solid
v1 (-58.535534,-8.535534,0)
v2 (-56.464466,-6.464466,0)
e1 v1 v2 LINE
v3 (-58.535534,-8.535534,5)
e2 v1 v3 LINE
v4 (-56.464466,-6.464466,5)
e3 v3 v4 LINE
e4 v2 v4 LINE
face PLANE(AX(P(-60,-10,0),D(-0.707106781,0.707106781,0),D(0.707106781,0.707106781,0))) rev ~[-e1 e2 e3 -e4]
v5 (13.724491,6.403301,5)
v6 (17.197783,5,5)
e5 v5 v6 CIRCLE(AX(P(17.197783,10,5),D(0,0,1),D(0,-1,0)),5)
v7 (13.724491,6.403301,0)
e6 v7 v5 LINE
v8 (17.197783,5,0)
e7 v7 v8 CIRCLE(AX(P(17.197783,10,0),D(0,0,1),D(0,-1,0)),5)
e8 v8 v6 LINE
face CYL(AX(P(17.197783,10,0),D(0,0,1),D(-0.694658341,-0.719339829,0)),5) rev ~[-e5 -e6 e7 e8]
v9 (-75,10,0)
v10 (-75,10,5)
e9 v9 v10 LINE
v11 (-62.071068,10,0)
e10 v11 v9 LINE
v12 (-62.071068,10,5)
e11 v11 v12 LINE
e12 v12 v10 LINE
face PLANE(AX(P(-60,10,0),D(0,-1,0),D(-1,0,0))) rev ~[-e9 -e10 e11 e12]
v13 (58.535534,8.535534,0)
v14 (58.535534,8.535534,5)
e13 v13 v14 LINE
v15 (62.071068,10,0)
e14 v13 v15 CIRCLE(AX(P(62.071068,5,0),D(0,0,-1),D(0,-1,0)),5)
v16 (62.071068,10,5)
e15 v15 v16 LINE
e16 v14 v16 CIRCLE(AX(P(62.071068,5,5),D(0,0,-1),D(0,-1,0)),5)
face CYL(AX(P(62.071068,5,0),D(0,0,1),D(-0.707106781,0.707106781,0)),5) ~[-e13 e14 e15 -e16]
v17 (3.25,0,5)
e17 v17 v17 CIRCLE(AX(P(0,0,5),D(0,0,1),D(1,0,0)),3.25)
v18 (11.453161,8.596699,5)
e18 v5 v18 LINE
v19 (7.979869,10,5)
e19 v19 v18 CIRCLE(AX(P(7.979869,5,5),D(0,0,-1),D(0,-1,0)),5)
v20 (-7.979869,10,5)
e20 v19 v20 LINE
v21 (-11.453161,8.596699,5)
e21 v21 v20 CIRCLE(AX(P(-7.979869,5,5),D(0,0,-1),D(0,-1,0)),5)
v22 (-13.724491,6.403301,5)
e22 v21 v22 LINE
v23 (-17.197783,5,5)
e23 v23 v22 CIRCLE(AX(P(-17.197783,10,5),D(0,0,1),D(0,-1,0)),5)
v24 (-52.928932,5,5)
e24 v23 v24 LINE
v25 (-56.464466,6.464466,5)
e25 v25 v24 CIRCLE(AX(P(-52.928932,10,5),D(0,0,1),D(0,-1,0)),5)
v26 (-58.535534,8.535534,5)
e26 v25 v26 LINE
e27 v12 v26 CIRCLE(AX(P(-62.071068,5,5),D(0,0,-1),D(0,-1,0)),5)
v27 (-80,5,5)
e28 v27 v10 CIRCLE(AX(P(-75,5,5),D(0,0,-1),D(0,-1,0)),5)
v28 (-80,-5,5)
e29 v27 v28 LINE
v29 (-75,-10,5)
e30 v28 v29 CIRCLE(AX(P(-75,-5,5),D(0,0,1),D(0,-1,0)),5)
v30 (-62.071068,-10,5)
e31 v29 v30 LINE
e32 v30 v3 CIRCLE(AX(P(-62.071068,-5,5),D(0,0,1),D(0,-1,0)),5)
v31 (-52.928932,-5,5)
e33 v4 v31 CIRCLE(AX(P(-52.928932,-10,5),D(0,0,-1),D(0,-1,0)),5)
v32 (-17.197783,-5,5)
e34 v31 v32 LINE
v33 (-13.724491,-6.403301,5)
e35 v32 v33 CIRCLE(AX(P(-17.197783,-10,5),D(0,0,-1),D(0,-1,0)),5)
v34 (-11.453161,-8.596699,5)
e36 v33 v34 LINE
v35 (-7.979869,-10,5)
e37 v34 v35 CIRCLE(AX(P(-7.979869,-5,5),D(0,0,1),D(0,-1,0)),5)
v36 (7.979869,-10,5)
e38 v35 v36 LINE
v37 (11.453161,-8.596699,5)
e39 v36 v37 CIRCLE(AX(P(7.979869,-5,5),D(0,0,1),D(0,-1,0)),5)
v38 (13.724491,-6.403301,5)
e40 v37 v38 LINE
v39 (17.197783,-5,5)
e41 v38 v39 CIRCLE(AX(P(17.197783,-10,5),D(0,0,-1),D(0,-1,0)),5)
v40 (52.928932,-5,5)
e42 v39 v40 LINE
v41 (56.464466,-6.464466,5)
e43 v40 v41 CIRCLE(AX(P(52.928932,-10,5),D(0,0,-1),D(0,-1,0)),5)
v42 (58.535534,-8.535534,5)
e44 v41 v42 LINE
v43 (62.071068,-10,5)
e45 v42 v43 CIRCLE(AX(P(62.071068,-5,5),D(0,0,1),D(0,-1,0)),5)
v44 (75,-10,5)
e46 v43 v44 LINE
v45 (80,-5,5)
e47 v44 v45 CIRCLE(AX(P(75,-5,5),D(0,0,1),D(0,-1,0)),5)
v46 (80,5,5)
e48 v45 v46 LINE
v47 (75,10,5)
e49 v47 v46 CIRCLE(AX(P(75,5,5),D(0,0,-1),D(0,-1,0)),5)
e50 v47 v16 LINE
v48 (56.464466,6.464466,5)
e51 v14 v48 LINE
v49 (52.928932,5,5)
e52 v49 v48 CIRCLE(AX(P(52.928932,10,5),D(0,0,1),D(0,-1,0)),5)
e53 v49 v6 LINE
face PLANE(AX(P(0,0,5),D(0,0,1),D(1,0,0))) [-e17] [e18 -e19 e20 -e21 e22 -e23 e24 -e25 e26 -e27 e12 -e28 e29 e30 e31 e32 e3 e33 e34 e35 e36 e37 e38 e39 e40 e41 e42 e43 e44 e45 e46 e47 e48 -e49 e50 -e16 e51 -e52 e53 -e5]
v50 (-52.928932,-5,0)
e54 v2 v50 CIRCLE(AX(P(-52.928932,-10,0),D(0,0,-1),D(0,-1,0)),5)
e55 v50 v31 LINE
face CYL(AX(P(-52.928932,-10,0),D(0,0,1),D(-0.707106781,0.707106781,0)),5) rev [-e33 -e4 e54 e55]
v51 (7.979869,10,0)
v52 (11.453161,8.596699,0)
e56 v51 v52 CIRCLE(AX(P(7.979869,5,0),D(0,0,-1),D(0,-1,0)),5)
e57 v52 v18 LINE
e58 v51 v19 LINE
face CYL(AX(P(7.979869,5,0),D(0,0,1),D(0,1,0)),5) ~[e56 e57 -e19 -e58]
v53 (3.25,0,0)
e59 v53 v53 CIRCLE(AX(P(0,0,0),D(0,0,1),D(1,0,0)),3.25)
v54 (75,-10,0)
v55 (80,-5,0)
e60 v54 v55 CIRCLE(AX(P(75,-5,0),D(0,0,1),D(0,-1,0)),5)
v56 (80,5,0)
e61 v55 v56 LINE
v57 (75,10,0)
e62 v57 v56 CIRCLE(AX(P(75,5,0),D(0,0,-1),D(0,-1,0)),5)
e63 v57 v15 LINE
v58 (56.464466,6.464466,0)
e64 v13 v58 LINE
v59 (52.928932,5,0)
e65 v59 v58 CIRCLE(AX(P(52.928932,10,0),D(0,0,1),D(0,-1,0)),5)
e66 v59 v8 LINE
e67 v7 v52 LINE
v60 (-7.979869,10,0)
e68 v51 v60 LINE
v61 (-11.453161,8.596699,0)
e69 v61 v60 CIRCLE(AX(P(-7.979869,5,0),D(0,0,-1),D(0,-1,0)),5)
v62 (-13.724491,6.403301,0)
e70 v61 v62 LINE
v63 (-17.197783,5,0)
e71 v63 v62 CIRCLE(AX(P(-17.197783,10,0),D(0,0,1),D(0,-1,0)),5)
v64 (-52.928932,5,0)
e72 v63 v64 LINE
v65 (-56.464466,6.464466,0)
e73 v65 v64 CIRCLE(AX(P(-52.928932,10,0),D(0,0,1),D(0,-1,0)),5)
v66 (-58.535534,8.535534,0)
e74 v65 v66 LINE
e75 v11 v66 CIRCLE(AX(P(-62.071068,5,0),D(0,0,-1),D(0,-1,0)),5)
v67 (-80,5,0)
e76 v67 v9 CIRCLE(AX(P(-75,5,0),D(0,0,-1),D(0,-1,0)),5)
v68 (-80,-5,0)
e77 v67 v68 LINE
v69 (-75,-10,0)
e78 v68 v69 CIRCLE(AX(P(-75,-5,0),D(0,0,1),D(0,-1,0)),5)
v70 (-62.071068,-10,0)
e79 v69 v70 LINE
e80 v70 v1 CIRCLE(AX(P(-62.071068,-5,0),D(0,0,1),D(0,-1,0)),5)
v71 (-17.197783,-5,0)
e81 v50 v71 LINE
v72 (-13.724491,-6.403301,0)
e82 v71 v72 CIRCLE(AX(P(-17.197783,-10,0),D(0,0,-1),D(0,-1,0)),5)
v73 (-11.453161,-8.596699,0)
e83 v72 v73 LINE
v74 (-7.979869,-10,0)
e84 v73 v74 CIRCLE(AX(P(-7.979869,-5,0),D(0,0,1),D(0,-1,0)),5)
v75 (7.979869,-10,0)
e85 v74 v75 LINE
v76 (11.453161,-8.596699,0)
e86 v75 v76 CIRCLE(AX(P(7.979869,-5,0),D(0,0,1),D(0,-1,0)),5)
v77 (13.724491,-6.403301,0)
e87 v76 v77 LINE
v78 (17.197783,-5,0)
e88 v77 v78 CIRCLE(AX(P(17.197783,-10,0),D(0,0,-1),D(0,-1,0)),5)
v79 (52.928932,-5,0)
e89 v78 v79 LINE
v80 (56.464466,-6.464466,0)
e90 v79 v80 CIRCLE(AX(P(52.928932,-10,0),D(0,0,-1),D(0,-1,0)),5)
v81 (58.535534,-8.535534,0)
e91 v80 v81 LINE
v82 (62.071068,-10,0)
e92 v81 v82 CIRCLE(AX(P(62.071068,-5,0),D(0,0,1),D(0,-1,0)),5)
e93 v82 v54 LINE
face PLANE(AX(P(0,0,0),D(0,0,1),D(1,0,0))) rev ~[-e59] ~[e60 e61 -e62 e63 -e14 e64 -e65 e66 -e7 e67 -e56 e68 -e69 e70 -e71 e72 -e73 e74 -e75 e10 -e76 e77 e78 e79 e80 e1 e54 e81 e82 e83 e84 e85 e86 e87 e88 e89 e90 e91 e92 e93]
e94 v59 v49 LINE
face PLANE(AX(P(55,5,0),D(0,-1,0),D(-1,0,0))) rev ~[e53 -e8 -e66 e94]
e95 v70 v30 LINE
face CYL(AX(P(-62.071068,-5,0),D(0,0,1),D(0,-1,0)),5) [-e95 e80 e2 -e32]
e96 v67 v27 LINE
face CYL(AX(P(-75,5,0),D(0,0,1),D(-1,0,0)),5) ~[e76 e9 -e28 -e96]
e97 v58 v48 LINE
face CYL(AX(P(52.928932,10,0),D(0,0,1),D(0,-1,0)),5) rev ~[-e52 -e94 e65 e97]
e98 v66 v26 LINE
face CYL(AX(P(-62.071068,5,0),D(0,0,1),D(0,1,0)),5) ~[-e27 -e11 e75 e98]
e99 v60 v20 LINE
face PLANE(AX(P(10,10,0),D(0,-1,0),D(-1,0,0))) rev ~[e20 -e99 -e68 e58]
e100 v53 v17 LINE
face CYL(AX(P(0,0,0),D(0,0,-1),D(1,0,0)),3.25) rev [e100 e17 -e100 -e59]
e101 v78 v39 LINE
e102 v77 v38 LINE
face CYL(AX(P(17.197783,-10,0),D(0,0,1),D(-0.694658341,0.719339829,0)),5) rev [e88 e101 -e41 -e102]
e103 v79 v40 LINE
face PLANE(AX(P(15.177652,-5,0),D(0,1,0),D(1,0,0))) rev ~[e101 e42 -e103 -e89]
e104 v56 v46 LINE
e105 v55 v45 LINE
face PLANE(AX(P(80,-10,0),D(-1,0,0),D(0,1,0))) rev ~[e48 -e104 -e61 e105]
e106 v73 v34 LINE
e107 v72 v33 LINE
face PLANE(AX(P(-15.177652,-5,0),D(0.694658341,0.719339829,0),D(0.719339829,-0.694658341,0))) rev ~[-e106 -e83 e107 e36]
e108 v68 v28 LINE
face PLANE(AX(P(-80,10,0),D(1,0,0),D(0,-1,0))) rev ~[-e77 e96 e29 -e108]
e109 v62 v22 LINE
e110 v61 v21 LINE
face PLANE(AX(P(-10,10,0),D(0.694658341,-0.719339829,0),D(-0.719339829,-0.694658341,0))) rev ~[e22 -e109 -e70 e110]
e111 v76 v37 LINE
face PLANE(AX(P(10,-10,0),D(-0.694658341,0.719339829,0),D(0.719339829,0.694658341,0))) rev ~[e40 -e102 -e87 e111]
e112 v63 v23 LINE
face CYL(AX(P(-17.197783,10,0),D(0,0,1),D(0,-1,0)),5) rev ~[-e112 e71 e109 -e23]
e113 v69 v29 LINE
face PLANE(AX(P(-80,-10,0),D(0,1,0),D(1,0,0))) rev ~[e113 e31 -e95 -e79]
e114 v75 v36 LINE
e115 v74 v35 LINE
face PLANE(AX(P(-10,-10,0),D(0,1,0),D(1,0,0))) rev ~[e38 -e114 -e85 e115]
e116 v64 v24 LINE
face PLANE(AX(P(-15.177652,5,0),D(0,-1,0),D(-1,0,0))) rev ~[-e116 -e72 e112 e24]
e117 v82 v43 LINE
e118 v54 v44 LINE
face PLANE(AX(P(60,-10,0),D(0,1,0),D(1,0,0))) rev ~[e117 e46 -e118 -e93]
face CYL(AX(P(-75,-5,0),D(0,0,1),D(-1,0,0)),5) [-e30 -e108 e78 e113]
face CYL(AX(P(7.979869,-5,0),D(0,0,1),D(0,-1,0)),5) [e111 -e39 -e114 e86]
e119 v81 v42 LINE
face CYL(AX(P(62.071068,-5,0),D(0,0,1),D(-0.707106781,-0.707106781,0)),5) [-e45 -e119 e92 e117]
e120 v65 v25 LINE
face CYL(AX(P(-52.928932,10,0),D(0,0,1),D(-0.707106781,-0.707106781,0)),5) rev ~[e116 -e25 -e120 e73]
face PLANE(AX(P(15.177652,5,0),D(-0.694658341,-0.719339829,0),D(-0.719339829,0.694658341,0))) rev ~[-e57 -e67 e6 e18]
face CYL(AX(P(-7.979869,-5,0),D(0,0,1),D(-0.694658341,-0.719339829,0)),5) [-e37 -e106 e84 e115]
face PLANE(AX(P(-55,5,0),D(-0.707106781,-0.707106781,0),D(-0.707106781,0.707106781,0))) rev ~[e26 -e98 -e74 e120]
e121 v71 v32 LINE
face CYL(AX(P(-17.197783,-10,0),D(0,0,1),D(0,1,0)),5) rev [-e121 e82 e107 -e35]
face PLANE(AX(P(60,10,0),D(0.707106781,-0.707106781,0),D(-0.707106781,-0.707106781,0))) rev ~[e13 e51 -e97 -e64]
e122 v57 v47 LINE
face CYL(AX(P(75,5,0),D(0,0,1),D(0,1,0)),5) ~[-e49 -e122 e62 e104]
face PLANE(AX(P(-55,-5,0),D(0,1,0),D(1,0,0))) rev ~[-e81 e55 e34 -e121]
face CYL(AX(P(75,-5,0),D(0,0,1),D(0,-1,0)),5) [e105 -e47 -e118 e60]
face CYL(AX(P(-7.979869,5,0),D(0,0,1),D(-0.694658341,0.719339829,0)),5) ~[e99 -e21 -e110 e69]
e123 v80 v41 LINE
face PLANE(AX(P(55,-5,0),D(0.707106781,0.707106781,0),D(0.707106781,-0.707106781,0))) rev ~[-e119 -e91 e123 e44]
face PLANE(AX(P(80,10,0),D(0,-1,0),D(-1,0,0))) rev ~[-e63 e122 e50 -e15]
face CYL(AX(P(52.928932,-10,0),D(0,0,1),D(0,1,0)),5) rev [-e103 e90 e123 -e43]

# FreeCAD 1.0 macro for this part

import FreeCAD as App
import Part
import Sketcher
Q = App.Units.Quantity


def edges_at(feature, points):
    """Names of the edges that pass closest to the given points."""
    edges = feature.Shape.Edges
    near = lambda p: min(range(len(edges)), key=lambda i: edges[i].distToShape(Part.Vertex(*p))[0])
    return sorted({f"Edge{near(p) + 1}" for p in points})


def add_polygon(sketch, points):
    """Adds a closed chain of lines whose ends are joined by coincident constraints."""
    first, n = sketch.GeometryCount, len(points)
    for a, b in zip(points, points[1:] + points[:1]):
        sketch.addGeometry(Part.LineSegment(App.Vector(*a, 0), App.Vector(*b, 0)), False)
    for i in range(n):
        sketch.addConstraint(Sketcher.Constraint("Coincident", first + i, 2, first + (i + 1) % n, 1))

doc = App.newDocument("Part")
body = doc.addObject("PartDesign::Body", "Body")

# Sketch on XY plane
sketch1 = body.newObject("Sketcher::SketchObject", "Sketch")
sketch1.AttachmentSupport = (doc.getObject("XY_Plane"), [""])
sketch1.MapMode = "FlatFace"
add_polygon(sketch1, [(-80, 10), (-80, -10), (-60, -10), (-55, -5), (-15.2, -5), (-10, -10), (10, -10), (15.2, -5), (55, -5), (60, -10), (80, -10), (80, 10), (60, 10), (55, 5), (15.2, 5), (10, 10), (-10, 10), (-15.2, 5), (-55, 5), (-60, 10)])  # lines 0-19
sketch1.addGeometry(Part.Circle(App.Vector(0, 0, 0), App.Vector(0, 0, 1), 3.2), False)  # 20
sketch1.addConstraint(Sketcher.Constraint("Vertical", 0))
sketch1.addConstraint(Sketcher.Constraint("Horizontal", 1))
sketch1.addConstraint(Sketcher.Constraint("Horizontal", 3))
sketch1.addConstraint(Sketcher.Constraint("Horizontal", 5))
sketch1.addConstraint(Sketcher.Constraint("Horizontal", 7))
sketch1.addConstraint(Sketcher.Constraint("Horizontal", 9))
sketch1.addConstraint(Sketcher.Constraint("Vertical", 10))
sketch1.addConstraint(Sketcher.Constraint("Horizontal", 11))
sketch1.addConstraint(Sketcher.Constraint("Horizontal", 13))
sketch1.addConstraint(Sketcher.Constraint("Horizontal", 15))
sketch1.addConstraint(Sketcher.Constraint("Horizontal", 17))
sketch1.addConstraint(Sketcher.Constraint("Horizontal", 19))
sketch1.addConstraint(Sketcher.Constraint("Coincident", 20, 3, -1, 1))
sketch1.addConstraint(Sketcher.Constraint("Symmetric", 0, 2, 10, 2, -1, 1))
sketch1.addConstraint(Sketcher.Constraint("Symmetric", 2, 2, 12, 2, -1, 1))
sketch1.addConstraint(Sketcher.Constraint("Symmetric", 4, 2, 14, 2, -1, 1))
sketch1.addConstraint(Sketcher.Constraint("Symmetric", 6, 2, 16, 2, -1, 1))
sketch1.addConstraint(Sketcher.Constraint("Symmetric", 8, 2, 18, 2, -1, 1))
sketch1.addConstraint(Sketcher.Constraint("Symmetric", 3, 2, 6, 2, -2))
sketch1.addConstraint(Sketcher.Constraint("Symmetric", 1, 2, 8, 2, -2))
sketch1.addConstraint(Sketcher.Constraint("Perpendicular", 2, 8))
sketch1.addConstraint(Sketcher.Constraint("Perpendicular", 8, 12))
sketch1.addConstraint(Sketcher.Constraint("Parallel", 4, 14))
sketch1.addConstraint(Sketcher.Constraint("Parallel", 6, 16))
sketch1.addConstraint(Sketcher.Constraint("Perpendicular", 12, 18))
sketch1.addConstraint(Sketcher.Constraint("Horizontal", 1, 2, 4, 2))
sketch1.addConstraint(Sketcher.Constraint("Vertical", 7, 2, 12, 2))
sketch1.addConstraint(Sketcher.Constraint("Vertical", 5, 2, 14, 2))
sketch1.addConstraint(Sketcher.Constraint("Equal", 1, 5))
sketch1.addConstraint(Sketcher.Constraint("Equal", 19, 0))
sketch1.addConstraint(Sketcher.Constraint("Diameter", 20, Q("6.5 mm")))
sketch1.addConstraint(Sketcher.Constraint("DistanceX", 1, 1, 1, 2, Q("20 mm")))
sketch1.addConstraint(Sketcher.Constraint("Angle", 4, Q("-43.999998 deg")))
sketch1.addConstraint(Sketcher.Constraint("DistanceX", 0, 2, -1, 1, Q("80 mm")))
sketch1.addConstraint(Sketcher.Constraint("DistanceX", 2, 2, -1, 1, Q("55 mm")))
pad1 = body.newObject("PartDesign::Pad", "Pad")
pad1.Profile = sketch1
pad1.Length = 5
doc.recompute()

fillet = body.newObject("PartDesign::Fillet", "Fillet")
fillet.Base = (pad1, edges_at(pad1, [
    (-80, -10, 2.5),
    (-55, -5, 2.5),
    (-10, -10, 2.5),
    (10, -10, 2.5),
    (15.178, -5, 2.5),
    (60, -10, 2.5),
    (80, -10, 2.5),
    (80, 10, 2.5),
    (60, 10, 2.5),
    (10, 10, 2.5),
    (15.178, 5, 2.5),
    (-55, 5, 2.5),
    (-60, 10, 2.5),
    (-80, 10, 2.5),
    (-10, 10, 2.5),
    (55, 5, 2.5),
    (-15.178, 5, 2.5),
    (-15.178, -5, 2.5),
    (55, -5, 2.5),
    (-60, -10, 2.5),
]))
fillet.Radius = 5

doc.recompute()
